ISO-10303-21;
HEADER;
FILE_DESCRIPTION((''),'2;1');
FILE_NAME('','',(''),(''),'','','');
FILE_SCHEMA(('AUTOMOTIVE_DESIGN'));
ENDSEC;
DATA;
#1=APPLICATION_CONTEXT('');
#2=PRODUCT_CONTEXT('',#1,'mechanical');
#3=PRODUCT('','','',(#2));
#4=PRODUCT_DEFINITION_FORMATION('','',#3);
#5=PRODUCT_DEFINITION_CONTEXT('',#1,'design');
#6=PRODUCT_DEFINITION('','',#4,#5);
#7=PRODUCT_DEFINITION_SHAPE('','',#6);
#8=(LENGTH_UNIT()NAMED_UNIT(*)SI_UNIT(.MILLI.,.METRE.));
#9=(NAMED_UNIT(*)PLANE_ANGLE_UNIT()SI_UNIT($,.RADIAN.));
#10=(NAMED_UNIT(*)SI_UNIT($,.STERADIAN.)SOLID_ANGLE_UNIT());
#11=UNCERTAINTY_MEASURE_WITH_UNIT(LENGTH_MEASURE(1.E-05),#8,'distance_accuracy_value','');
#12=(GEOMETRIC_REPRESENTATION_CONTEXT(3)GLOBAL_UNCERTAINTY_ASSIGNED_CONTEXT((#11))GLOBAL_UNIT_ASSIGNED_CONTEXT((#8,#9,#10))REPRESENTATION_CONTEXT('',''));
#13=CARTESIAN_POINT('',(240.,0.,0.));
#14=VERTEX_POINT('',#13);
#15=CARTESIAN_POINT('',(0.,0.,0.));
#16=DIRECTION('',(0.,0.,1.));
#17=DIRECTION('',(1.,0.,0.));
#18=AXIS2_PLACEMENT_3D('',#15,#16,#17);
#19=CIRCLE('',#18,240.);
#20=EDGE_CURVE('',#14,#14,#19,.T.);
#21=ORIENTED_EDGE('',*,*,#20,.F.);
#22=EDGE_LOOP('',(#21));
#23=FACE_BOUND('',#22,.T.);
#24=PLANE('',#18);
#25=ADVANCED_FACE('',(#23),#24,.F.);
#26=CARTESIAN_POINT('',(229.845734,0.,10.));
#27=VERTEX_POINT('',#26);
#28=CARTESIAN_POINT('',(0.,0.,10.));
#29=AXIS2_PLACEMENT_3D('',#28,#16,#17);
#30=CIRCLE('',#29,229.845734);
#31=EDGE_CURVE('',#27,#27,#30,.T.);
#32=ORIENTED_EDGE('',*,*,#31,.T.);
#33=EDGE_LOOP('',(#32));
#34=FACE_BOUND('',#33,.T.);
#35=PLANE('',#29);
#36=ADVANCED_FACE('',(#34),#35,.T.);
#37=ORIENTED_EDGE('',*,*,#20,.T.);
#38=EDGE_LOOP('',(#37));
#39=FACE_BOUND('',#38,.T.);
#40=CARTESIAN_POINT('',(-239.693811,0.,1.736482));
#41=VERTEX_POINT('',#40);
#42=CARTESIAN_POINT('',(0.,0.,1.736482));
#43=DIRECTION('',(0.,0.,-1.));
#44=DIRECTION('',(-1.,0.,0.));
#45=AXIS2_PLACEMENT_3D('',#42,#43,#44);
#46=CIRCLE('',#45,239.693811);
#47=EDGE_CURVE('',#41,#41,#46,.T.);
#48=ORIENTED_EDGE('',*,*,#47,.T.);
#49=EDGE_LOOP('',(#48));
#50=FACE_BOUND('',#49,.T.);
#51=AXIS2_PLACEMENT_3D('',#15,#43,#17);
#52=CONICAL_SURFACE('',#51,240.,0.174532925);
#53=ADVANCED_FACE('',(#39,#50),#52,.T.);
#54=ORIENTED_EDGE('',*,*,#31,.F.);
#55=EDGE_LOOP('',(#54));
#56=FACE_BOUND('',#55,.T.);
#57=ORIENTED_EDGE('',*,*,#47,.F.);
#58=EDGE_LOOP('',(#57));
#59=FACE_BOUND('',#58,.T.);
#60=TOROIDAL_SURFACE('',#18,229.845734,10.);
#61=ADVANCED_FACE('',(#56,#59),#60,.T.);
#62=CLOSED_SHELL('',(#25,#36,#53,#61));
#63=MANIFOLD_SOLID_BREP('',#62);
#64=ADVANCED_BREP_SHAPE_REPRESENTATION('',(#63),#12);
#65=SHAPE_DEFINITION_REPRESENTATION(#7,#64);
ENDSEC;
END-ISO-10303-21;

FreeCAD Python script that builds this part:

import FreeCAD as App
import Part
import Sketcher
Q = App.Units.Quantity


def edges_at(feature, points):
    """Names of the edges that pass closest to the given points."""
    edges = feature.Shape.Edges
    near = lambda p: min(range(len(edges)), key=lambda i: edges[i].distToShape(Part.Vertex(*p))[0])
    return sorted({f"Edge{near(p) + 1}" for p in points})

doc = App.newDocument("Part")
params = doc.addObject("Spreadsheet::Sheet", "Params")
for row, (alias, value) in enumerate([
    ("sketch1_diameter", "480 mm"),
    ("pad1_length", "10 mm"),
    ("pad1_taper", "-10 deg"),
    ("fillet_radius", "10 mm"),
], start=1):
    params.set(f"A{row}", alias)
    params.set(f"B{row}", "=" + value)
    params.setAlias(f"B{row}", alias)

body = doc.addObject("PartDesign::Body", "Body")

sketch1 = body.newObject("Sketcher::SketchObject", "Sketch")
sketch1.AttachmentSupport = (doc.getObject("XY_Plane"), [""])
sketch1.MapMode = "FlatFace"
sketch1.addGeometry(Part.Circle(App.Vector(0, 0, 0), App.Vector(0, 0, 1), 240), False)
sketch1.addConstraint([
    Sketcher.Constraint("Coincident", 0, 3, -1, 1),
    Sketcher.Constraint("Diameter", 0, Q("480 mm")),
])
sketch1.setExpression("Constraints[1]", "Params.sketch1_diameter")
pad1 = body.newObject("PartDesign::Pad", "Pad")
pad1.Profile = sketch1
pad1.setExpression("Length", "Params.pad1_length")
pad1.setExpression("TaperAngle", "Params.pad1_taper")
doc.recompute()

fillet = body.newObject("PartDesign::Fillet", "Fillet")
fillet.Base = (pad1, edges_at(pad1, [(-238.237, 0, 10)]))
fillet.setExpression("Radius", "Params.fillet_radius")

doc.recompute()
